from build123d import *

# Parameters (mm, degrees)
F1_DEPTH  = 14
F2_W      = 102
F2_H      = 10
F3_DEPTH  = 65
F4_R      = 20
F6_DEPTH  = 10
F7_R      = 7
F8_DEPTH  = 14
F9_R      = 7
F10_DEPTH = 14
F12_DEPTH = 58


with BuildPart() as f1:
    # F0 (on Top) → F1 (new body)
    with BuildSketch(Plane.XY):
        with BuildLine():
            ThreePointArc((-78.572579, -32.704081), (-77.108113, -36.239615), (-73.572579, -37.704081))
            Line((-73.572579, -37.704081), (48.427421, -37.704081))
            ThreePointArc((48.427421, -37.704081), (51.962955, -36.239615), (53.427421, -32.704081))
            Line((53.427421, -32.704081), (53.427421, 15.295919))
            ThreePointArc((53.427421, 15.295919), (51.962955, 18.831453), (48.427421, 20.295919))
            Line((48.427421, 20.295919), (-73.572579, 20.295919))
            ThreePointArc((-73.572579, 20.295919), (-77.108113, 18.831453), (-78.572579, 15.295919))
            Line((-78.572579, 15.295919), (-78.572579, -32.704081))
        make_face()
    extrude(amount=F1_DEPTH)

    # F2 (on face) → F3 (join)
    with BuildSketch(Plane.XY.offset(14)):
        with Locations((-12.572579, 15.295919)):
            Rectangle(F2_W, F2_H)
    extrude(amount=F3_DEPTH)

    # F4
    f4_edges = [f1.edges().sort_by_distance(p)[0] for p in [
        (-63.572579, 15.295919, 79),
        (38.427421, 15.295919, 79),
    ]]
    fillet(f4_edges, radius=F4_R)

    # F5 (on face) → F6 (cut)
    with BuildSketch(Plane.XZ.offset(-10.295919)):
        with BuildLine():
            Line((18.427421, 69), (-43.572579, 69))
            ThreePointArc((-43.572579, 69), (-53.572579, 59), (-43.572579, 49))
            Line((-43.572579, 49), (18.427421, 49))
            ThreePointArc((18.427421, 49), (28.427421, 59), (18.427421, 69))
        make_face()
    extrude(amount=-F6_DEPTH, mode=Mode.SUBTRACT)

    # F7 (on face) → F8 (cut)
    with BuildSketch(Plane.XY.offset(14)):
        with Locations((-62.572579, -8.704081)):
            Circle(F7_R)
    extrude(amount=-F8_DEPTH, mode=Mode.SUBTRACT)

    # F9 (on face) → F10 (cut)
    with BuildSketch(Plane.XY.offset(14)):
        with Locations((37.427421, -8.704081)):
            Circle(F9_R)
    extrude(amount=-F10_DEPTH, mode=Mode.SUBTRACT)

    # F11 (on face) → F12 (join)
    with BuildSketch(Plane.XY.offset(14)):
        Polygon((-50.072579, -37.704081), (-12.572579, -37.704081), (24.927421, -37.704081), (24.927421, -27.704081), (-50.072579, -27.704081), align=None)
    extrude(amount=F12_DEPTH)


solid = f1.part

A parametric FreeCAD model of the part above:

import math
import FreeCAD as App
import Part
import Sketcher
Q = App.Units.Quantity


def edges_at(feature, points):
    """Names of the edges that pass closest to the given points."""
    edges = feature.Shape.Edges
    near = lambda p: min(range(len(edges)), key=lambda i: edges[i].distToShape(Part.Vertex(*p))[0])
    return sorted({f"Edge{near(p) + 1}" for p in points})

doc = App.newDocument("Part")
body = doc.addObject("PartDesign::Body", "Body")

sketch1 = body.newObject("Sketcher::SketchObject", "Sketch")
sketch1.AttachmentSupport = (doc.getObject("XY_Plane"), [""])
sketch1.MapMode = "FlatFace"
sketch1.addGeometry([
    Part.ArcOfCircle(Part.Circle(App.Vector(-73.572579, -32.704081, 0), App.Vector(0, 0, 1), 5), math.radians(179.999996), math.radians(270.000004)),
    Part.LineSegment(App.Vector(-73.572579, -37.704081, 0), App.Vector(48.427421, -37.704081, 0)),
    Part.ArcOfCircle(Part.Circle(App.Vector(48.427421, -32.704081, 0), App.Vector(0, 0, 1), 5), math.radians(-90.000004), math.radians(0.000004)),
    Part.LineSegment(App.Vector(53.427421, -32.704081, 0), App.Vector(53.427421, 15.295919, 0)),
    Part.ArcOfCircle(Part.Circle(App.Vector(48.427421, 15.295919, 0), App.Vector(0, 0, 1), 5), math.radians(-0.000004), math.radians(90.000004)),
    Part.LineSegment(App.Vector(48.427421, 20.295919, 0), App.Vector(-73.572579, 20.295919, 0)),
    Part.ArcOfCircle(Part.Circle(App.Vector(-73.572579, 15.295919, 0), App.Vector(0, 0, 1), 5), math.radians(89.999996), math.radians(180.000004)),
    Part.LineSegment(App.Vector(-78.572579, 15.295919, 0), App.Vector(-78.572579, -32.704081, 0)),
], False)
sketch1.addConstraint([
    Sketcher.Constraint("Tangent", 0, 2, 1, 1),
    Sketcher.Constraint("Tangent", 1, 2, 2, 1),
    Sketcher.Constraint("Tangent", 2, 2, 3, 1),
    Sketcher.Constraint("Tangent", 3, 2, 4, 1),
    Sketcher.Constraint("Tangent", 4, 2, 5, 1),
    Sketcher.Constraint("Tangent", 5, 2, 6, 1),
    Sketcher.Constraint("Tangent", 6, 2, 7, 1),
    Sketcher.Constraint("Tangent", 7, 2, 0, 1),
    Sketcher.Constraint("Horizontal", 1),
    Sketcher.Constraint("Vertical", 3),
    Sketcher.Constraint("Horizontal", 5),
    Sketcher.Constraint("Vertical", 7),
    Sketcher.Constraint("Equal", 0, 2),
    Sketcher.Constraint("Equal", 2, 4),
    Sketcher.Constraint("Equal", 4, 6),
    Sketcher.Constraint("Radius", 0, Q("5 mm")),
    Sketcher.Constraint("DistanceX", 1, 1, 1, 2, Q("122 mm")),
    Sketcher.Constraint("DistanceY", 3, 1, 3, 2, Q("48 mm")),
    Sketcher.Constraint("DistanceX", 0, 3, -1, 1, Q("73.572579 mm")),
    Sketcher.Constraint("DistanceY", 0, 3, -1, 1, Q("32.704081 mm")),
])
pad1 = body.newObject("PartDesign::Pad", "Pad")
pad1.Profile = sketch1
pad1.Length = 14

sketch2 = body.newObject("Sketcher::SketchObject", "Sketch001")
sketch2.AttachmentSupport = (doc.getObject("XY_Plane"), [""])
sketch2.MapMode = "FlatFace"
sketch2.AttachmentOffset = App.Placement(App.Vector(0, 0, 14), App.Rotation())
sketch2.addGeometry([
    Part.LineSegment(App.Vector(-63.572579, 20.295919, 0), App.Vector(-63.572579, 10.295919, 0)),
    Part.LineSegment(App.Vector(-63.572579, 10.295919, 0), App.Vector(38.427421, 10.295919, 0)),
    Part.LineSegment(App.Vector(38.427421, 10.295919, 0), App.Vector(38.427421, 20.295919, 0)),
    Part.LineSegment(App.Vector(38.427421, 20.295919, 0), App.Vector(-63.572579, 20.295919, 0)),
], False)
sketch2.addConstraint([
    Sketcher.Constraint("Coincident", 0, 2, 1, 1),
    Sketcher.Constraint("Coincident", 1, 2, 2, 1),
    Sketcher.Constraint("Coincident", 2, 2, 3, 1),
    Sketcher.Constraint("Coincident", 3, 2, 0, 1),
    Sketcher.Constraint("Vertical", 0),
    Sketcher.Constraint("Horizontal", 1),
    Sketcher.Constraint("Vertical", 2),
    Sketcher.Constraint("Horizontal", 3),
    Sketcher.Constraint("DistanceX", 1, 1, 1, 2, Q("102 mm")),
    Sketcher.Constraint("DistanceY", 0, 2, 0, 1, Q("10 mm")),
    Sketcher.Constraint("DistanceX", 0, 2, -1, 1, Q("63.572579 mm")),
    Sketcher.Constraint("DistanceY", -1, 1, 0, 2, Q("10.295919 mm")),
])
pad2 = body.newObject("PartDesign::Pad", "Pad001")
pad2.Profile = sketch2
pad2.Length = 65
doc.recompute()

fillet = body.newObject("PartDesign::Fillet", "Fillet")
fillet.Base = (pad2, edges_at(pad2, [(-63.573, 15.296, 79), (38.427, 15.296, 79)]))
fillet.Radius = 20

sketch3 = body.newObject("Sketcher::SketchObject", "Sketch002")
sketch3.AttachmentSupport = (doc.getObject("XZ_Plane"), [""])
sketch3.MapMode = "FlatFace"
sketch3.AttachmentOffset = App.Placement(App.Vector(0, 0, -10.295919), App.Rotation())
sketch3.addGeometry([
    Part.LineSegment(App.Vector(18.427421, 69, 0), App.Vector(-43.572579, 69, 0)),
    Part.ArcOfCircle(Part.Circle(App.Vector(-43.572579, 59, 0), App.Vector(0, 0, 1), 10), math.radians(90), math.radians(270)),
    Part.LineSegment(App.Vector(-43.572579, 49, 0), App.Vector(18.427421, 49, 0)),
    Part.ArcOfCircle(Part.Circle(App.Vector(18.427421, 59, 0), App.Vector(0, 0, 1), 10), math.radians(-90), math.radians(90)),
], False)
sketch3.addConstraint([
    Sketcher.Constraint("Tangent", 0, 2, 1, 1),
    Sketcher.Constraint("Tangent", 1, 2, 2, 1),
    Sketcher.Constraint("Tangent", 2, 2, 3, 1),
    Sketcher.Constraint("Tangent", 3, 2, 0, 1),
    Sketcher.Constraint("Horizontal", 0),
    Sketcher.Constraint("Horizontal", 2),
    Sketcher.Constraint("Radius", 1, Q("10 mm")),
    Sketcher.Constraint("DistanceX", 0, 2, 0, 1, Q("62 mm")),
    Sketcher.Constraint("DistanceY", -1, 1, 1, 3, Q("59 mm")),
    Sketcher.Constraint("DistanceX", 1, 3, -1, 1, Q("43.572579 mm")),
])
pocket1 = body.newObject("PartDesign::Pocket", "Pocket")
pocket1.Profile = sketch3
pocket1.Length = 10

sketch4 = body.newObject("Sketcher::SketchObject", "Sketch003")
sketch4.AttachmentSupport = (doc.getObject("XY_Plane"), [""])
sketch4.MapMode = "FlatFace"
sketch4.AttachmentOffset = App.Placement(App.Vector(0, 0, 14), App.Rotation())
sketch4.addGeometry(Part.Circle(App.Vector(-62.572579, -8.704081, 0), App.Vector(0, 0, 1), 7), False)
sketch4.addConstraint([
    Sketcher.Constraint("Diameter", 0, Q("14 mm")),
    Sketcher.Constraint("DistanceX", 0, 3, -1, 1, Q("62.572579 mm")),
    Sketcher.Constraint("DistanceY", 0, 3, -1, 1, Q("8.704081 mm")),
])
pocket2 = body.newObject("PartDesign::Pocket", "Pocket001")
pocket2.Profile = sketch4
pocket2.Length = 14

sketch5 = body.newObject("Sketcher::SketchObject", "Sketch004")
sketch5.AttachmentSupport = (doc.getObject("XY_Plane"), [""])
sketch5.MapMode = "FlatFace"
sketch5.AttachmentOffset = App.Placement(App.Vector(0, 0, 14), App.Rotation())
sketch5.addGeometry(Part.Circle(App.Vector(37.427421, -8.704081, 0), App.Vector(0, 0, 1), 7), False)
sketch5.addConstraint([
    Sketcher.Constraint("Diameter", 0, Q("14 mm")),
    Sketcher.Constraint("DistanceX", -1, 1, 0, 3, Q("37.427421 mm")),
    Sketcher.Constraint("DistanceY", 0, 3, -1, 1, Q("8.704081 mm")),
])
pocket3 = body.newObject("PartDesign::Pocket", "Pocket002")
pocket3.Profile = sketch5
pocket3.Length = 14

sketch6 = body.newObject("Sketcher::SketchObject", "Sketch005")
sketch6.AttachmentSupport = (doc.getObject("XY_Plane"), [""])
sketch6.MapMode = "FlatFace"
sketch6.AttachmentOffset = App.Placement(App.Vector(0, 0, 14), App.Rotation())
sketch6.addGeometry([
    Part.LineSegment(App.Vector(-50.072579, -37.704081, 0), App.Vector(24.927421, -37.704081, 0)),
    Part.LineSegment(App.Vector(24.927421, -37.704081, 0), App.Vector(24.927421, -27.704081, 0)),
    Part.LineSegment(App.Vector(24.927421, -27.704081, 0), App.Vector(-50.072579, -27.704081, 0)),
    Part.LineSegment(App.Vector(-50.072579, -27.704081, 0), App.Vector(-50.072579, -37.704081, 0)),
], False)
sketch6.addConstraint([
    Sketcher.Constraint("Coincident", 0, 2, 1, 1),
    Sketcher.Constraint("Coincident", 1, 2, 2, 1),
    Sketcher.Constraint("Coincident", 2, 2, 3, 1),
    Sketcher.Constraint("Coincident", 3, 2, 0, 1),
    Sketcher.Constraint("Horizontal", 0),
    Sketcher.Constraint("Vertical", 1),
    Sketcher.Constraint("Horizontal", 2),
    Sketcher.Constraint("Vertical", 3),
    Sketcher.Constraint("DistanceX", 0, 1, 0, 2, Q("75 mm")),
    Sketcher.Constraint("DistanceY", 1, 1, 1, 2, Q("10 mm")),
    Sketcher.Constraint("DistanceX", -1, 1, 0, 2, Q("24.927421 mm")),
    Sketcher.Constraint("DistanceY", 0, 2, -1, 1, Q("37.704081 mm")),
])
pad3 = body.newObject("PartDesign::Pad", "Pad002")
pad3.Profile = sketch6
pad3.Length = 58

doc.recompute()
